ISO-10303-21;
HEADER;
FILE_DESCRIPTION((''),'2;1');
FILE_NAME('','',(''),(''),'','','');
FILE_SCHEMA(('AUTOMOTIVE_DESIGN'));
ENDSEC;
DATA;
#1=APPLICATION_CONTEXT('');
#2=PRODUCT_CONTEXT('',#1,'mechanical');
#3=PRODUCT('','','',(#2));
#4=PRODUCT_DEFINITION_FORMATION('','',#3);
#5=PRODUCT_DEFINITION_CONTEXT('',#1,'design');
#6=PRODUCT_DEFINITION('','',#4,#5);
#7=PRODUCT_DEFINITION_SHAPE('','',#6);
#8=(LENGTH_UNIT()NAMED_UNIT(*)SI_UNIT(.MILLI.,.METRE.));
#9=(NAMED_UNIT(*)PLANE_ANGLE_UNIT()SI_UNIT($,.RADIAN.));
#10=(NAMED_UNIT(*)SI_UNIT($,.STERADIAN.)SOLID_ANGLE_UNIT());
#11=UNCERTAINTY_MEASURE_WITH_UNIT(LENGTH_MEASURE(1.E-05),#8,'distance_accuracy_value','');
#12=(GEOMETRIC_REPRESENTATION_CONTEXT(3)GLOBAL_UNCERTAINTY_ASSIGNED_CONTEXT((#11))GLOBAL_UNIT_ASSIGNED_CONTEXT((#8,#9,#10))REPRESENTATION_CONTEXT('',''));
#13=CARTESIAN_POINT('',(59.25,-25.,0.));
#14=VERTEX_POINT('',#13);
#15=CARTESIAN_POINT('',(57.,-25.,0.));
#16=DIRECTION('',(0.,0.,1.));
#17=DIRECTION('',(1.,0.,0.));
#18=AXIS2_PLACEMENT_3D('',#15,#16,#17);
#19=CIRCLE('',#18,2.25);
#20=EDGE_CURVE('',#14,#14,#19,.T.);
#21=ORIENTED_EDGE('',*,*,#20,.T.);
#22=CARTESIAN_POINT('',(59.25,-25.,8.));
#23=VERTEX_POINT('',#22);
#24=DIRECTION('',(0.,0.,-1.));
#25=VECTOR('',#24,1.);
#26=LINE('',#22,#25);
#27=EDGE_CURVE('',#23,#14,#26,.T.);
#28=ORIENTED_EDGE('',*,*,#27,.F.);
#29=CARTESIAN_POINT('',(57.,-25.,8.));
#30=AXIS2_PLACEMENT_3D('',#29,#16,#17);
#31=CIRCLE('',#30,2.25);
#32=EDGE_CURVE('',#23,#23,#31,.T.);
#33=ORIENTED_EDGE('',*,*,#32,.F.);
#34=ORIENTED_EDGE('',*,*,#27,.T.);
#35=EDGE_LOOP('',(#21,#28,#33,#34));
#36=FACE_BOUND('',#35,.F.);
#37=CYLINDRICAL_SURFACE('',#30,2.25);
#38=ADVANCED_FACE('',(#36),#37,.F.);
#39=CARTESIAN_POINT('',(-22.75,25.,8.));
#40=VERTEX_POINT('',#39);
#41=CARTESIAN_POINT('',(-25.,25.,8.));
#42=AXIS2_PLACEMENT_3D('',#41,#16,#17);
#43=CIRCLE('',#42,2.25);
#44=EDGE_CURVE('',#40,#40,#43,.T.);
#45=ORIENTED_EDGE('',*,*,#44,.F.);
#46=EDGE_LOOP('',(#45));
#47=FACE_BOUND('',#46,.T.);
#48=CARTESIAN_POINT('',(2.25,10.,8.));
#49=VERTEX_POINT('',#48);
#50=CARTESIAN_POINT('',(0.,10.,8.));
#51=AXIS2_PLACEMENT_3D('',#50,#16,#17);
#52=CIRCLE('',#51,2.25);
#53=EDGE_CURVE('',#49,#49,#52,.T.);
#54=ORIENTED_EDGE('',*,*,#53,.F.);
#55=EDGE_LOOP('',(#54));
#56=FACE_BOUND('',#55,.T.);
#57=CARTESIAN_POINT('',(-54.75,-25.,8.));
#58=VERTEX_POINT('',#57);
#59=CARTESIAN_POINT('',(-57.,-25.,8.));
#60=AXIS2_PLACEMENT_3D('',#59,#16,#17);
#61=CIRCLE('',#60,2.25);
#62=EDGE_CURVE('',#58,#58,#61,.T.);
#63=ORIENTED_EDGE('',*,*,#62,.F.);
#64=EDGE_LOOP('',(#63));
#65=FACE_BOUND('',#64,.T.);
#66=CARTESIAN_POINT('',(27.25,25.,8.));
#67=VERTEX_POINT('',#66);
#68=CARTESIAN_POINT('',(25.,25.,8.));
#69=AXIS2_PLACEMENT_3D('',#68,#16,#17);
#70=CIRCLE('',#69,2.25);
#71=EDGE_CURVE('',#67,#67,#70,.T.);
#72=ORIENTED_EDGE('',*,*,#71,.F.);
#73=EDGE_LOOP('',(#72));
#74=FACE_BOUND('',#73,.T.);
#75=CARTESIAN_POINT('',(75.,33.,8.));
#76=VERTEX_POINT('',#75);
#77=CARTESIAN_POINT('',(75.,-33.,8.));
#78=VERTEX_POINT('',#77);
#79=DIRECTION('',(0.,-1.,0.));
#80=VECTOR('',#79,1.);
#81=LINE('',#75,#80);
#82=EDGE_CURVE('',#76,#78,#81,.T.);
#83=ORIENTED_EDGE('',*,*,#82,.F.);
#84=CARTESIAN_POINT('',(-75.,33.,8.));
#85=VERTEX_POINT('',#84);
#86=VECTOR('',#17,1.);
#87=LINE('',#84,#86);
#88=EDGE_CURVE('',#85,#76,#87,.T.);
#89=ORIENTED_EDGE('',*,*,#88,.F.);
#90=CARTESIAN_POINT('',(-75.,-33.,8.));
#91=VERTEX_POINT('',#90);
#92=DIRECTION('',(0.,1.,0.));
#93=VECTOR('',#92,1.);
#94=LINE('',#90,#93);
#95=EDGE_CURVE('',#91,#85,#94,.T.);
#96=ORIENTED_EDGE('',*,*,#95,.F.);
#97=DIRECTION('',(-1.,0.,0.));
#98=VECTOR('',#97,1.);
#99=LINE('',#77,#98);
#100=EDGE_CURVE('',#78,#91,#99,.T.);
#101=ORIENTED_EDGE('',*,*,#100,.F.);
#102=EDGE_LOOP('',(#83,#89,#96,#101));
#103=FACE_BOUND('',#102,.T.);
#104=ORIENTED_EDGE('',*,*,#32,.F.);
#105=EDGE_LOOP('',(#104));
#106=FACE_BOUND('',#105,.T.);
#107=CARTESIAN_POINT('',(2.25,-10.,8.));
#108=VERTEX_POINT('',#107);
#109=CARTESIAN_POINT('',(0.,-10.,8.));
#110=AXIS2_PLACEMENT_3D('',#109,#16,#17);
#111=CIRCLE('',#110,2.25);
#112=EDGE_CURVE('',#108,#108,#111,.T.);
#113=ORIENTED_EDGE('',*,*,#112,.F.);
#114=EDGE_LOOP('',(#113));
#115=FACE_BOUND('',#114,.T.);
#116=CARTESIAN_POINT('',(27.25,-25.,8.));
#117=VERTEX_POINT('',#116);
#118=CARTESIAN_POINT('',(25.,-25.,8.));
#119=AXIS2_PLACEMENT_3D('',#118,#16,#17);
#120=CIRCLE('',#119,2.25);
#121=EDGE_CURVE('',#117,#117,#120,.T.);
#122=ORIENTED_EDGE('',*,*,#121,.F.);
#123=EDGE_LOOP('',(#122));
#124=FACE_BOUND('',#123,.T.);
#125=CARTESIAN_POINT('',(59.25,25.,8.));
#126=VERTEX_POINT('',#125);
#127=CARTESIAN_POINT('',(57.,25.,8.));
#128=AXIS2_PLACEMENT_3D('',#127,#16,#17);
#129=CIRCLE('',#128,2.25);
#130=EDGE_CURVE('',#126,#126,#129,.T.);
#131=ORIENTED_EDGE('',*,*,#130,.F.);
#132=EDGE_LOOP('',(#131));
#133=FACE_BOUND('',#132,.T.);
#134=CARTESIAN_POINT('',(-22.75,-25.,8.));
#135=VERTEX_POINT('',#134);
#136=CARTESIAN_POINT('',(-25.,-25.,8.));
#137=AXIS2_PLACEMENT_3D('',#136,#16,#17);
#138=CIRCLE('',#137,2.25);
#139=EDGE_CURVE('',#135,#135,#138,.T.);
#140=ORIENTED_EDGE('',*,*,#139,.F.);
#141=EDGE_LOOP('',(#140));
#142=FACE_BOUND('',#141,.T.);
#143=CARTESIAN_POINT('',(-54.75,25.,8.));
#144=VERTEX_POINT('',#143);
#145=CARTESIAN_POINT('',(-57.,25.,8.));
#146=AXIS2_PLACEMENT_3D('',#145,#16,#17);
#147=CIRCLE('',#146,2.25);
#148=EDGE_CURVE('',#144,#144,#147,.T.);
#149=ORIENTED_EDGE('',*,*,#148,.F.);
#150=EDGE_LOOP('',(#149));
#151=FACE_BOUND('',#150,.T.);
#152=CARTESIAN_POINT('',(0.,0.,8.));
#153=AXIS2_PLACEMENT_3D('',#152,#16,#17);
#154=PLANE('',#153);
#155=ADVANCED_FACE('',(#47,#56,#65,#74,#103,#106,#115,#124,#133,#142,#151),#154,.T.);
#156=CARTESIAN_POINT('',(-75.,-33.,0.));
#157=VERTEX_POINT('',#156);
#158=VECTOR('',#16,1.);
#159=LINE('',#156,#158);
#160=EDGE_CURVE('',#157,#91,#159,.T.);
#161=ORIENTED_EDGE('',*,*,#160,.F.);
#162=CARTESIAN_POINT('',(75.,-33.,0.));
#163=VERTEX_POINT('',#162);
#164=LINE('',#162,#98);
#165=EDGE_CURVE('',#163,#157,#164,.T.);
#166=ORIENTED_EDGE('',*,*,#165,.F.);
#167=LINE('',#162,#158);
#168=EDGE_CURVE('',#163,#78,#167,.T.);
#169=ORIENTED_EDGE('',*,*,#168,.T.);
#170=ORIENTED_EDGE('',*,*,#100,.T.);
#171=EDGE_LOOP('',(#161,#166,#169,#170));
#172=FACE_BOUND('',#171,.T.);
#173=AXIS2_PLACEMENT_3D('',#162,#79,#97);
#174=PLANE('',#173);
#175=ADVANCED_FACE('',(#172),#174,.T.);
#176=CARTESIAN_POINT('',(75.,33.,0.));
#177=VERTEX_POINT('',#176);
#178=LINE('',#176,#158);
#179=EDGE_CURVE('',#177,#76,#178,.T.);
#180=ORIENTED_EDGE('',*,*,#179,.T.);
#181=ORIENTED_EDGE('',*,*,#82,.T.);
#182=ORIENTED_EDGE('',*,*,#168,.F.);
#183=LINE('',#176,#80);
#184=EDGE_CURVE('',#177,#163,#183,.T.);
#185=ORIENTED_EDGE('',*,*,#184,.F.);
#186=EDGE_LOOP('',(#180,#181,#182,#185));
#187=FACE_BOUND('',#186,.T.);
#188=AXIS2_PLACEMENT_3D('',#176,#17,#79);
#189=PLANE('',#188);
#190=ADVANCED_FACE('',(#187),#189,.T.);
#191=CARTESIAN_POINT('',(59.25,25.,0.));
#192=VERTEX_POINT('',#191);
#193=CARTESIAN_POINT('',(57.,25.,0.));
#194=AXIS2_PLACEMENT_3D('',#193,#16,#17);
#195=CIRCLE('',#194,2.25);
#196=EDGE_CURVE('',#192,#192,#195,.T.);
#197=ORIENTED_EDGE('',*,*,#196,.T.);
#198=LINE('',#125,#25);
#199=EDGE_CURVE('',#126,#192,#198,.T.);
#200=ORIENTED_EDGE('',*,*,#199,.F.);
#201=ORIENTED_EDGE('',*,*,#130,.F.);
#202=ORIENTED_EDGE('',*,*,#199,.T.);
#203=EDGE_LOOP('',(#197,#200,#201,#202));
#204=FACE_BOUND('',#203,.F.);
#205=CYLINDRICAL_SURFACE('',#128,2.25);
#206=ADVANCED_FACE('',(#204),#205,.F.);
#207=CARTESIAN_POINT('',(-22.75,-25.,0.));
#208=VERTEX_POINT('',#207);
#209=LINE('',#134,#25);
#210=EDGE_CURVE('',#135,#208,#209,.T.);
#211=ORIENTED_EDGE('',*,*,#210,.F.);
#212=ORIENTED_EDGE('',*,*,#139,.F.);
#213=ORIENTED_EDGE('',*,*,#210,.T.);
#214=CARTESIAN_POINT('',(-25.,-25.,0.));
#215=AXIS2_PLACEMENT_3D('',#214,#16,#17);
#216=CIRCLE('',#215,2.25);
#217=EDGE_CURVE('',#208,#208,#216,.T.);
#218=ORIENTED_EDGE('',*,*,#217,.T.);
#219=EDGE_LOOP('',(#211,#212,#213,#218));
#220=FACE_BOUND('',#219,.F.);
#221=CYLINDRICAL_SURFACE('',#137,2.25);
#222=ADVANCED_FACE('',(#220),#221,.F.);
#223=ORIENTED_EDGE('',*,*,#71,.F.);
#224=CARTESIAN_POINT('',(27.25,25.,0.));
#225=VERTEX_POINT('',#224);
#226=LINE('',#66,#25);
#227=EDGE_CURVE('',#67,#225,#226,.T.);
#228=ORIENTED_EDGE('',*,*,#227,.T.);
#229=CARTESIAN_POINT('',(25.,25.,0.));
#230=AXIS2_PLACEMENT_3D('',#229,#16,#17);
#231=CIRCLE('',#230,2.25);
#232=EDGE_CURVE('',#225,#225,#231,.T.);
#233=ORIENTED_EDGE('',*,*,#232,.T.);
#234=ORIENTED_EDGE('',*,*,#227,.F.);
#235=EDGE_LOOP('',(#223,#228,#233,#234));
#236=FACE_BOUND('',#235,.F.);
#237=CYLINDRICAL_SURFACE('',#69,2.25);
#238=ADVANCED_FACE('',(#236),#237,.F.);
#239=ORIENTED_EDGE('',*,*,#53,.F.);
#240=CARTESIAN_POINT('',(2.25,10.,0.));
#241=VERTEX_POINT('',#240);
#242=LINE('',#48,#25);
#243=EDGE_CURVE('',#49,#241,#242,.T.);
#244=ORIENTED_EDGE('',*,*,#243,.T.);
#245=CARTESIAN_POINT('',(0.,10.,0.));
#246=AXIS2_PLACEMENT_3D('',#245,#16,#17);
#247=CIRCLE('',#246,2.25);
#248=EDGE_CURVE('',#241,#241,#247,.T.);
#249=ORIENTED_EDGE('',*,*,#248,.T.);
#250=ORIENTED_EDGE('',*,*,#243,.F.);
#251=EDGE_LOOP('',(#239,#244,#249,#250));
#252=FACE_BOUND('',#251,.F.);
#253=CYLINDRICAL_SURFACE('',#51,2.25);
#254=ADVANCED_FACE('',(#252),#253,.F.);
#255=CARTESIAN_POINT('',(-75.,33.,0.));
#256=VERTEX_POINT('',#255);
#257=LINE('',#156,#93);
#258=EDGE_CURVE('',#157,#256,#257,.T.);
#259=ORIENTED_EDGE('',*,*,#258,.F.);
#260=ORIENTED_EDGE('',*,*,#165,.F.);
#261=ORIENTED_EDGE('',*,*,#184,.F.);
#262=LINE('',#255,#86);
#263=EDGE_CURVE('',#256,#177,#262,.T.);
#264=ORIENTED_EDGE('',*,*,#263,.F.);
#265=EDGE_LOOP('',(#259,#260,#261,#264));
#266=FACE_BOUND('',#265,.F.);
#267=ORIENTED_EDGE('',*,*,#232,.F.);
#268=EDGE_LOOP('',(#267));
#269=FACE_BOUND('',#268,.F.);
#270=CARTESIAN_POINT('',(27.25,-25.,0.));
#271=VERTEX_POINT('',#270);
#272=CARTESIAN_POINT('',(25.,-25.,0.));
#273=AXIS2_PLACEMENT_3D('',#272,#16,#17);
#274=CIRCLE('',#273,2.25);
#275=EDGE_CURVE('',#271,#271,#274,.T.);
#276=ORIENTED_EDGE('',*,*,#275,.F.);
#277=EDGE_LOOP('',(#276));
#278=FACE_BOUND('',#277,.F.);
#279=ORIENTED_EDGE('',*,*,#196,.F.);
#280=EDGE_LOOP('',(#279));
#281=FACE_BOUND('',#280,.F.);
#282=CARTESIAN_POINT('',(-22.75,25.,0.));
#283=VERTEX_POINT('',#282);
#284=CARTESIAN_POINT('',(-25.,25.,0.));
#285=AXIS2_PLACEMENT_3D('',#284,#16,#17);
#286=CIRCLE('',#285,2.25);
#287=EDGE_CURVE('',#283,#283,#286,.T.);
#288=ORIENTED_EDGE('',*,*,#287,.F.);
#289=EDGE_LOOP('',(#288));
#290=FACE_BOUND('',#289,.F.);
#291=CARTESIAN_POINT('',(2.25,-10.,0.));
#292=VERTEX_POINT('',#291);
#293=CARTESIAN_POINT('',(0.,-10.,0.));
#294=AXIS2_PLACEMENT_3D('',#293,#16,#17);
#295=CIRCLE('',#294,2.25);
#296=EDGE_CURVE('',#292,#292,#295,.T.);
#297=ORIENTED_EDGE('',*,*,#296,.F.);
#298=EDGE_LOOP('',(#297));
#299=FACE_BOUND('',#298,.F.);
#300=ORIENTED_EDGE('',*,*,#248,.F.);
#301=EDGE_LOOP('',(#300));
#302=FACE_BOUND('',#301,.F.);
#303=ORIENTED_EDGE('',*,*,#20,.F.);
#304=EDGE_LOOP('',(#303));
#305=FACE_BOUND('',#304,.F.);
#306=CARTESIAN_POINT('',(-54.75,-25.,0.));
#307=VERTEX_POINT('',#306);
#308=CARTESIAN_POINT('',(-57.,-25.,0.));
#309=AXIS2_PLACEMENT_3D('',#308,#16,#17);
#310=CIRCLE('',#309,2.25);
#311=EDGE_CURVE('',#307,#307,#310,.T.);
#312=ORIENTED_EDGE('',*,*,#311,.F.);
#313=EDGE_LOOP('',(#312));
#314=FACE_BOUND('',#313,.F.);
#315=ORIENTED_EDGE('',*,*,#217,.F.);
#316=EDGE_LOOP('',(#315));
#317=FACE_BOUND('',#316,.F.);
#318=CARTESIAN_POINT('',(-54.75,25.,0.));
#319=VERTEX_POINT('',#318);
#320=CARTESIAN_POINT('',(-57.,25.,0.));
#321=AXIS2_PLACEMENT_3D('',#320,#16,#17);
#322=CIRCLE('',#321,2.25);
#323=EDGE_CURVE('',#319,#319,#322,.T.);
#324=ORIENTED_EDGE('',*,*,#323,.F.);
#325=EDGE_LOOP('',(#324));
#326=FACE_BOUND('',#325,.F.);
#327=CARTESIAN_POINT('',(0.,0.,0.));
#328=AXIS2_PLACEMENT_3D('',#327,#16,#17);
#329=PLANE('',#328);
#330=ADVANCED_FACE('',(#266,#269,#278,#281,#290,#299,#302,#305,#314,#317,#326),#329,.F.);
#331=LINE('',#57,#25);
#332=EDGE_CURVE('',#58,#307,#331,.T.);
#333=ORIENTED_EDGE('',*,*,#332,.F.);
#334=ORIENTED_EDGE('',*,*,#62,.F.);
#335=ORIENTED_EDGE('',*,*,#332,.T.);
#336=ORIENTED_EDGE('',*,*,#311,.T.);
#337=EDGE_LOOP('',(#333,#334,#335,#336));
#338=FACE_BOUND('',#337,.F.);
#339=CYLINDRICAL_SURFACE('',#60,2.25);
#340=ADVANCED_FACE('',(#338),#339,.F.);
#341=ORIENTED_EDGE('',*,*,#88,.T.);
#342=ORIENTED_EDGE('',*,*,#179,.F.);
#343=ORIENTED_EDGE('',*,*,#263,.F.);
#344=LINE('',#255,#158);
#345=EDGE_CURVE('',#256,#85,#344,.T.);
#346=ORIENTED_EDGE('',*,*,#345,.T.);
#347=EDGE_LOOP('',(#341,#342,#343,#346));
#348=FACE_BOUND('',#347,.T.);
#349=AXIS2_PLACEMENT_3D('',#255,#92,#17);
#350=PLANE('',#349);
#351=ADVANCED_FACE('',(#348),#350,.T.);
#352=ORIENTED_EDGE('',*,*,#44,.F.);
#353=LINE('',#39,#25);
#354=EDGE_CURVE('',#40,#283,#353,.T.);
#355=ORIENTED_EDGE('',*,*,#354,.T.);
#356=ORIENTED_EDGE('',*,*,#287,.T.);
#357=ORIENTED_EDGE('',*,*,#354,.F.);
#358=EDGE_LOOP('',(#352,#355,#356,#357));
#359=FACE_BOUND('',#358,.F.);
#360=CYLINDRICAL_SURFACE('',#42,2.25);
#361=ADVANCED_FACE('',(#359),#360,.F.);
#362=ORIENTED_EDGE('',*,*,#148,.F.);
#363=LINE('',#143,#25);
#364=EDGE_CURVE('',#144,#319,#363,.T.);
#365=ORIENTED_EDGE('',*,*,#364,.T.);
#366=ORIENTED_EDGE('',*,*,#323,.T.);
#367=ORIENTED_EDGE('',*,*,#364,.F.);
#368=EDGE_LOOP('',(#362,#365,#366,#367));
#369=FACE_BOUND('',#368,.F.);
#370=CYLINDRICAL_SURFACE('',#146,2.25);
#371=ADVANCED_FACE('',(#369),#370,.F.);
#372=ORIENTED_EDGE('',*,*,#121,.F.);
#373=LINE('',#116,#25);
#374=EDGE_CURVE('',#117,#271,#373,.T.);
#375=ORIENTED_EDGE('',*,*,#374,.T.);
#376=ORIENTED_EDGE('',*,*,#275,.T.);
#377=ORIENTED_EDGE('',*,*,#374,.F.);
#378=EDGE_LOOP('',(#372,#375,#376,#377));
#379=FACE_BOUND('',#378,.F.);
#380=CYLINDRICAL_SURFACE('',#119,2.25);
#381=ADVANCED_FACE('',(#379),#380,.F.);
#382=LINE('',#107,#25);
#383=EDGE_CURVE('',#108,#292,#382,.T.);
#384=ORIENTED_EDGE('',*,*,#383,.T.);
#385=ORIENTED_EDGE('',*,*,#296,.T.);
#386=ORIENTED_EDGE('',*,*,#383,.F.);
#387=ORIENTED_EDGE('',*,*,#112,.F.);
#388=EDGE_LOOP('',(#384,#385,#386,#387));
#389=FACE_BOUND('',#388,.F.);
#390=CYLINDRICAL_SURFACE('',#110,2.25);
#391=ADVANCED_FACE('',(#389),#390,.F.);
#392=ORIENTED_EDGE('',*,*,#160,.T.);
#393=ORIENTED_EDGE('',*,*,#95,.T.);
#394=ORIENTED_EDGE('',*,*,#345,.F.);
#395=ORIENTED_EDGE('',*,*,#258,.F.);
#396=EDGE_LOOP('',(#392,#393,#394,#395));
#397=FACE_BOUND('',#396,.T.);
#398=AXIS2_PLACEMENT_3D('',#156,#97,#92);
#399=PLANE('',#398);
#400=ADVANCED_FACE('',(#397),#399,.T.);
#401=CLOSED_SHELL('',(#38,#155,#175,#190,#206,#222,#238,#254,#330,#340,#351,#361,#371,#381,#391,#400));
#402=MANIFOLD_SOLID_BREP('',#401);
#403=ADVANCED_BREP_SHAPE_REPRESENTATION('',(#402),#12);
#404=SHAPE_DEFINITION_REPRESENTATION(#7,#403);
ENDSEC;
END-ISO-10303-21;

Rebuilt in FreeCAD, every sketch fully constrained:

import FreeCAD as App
import Part
import Sketcher
Q = App.Units.Quantity

doc = App.newDocument("Part")
body = doc.addObject("PartDesign::Body", "Body")

# Sketch on XY plane
sketch1 = doc.addObject("Sketcher::SketchObject", "Sketch")
body.addObject(sketch1)
sketch1.AttachmentSupport = (doc.XY_Plane, [""])
sketch1.MapMode = "FlatFace"
sketch1.addGeometry([
    Part.LineSegment(App.Vector(75, 33, 0), App.Vector(-75, 33, 0)),
    Part.LineSegment(App.Vector(-75, 33, 0), App.Vector(-75, -33, 0)),
    Part.LineSegment(App.Vector(-75, -33, 0), App.Vector(75, -33, 0)),
    Part.LineSegment(App.Vector(75, -33, 0), App.Vector(75, 33, 0)),
], False)
sketch1.addConstraint([
    Sketcher.Constraint("Coincident", 0, 2, 1, 1),
    Sketcher.Constraint("Coincident", 1, 2, 2, 1),
    Sketcher.Constraint("Coincident", 2, 2, 3, 1),
    Sketcher.Constraint("Coincident", 3, 2, 0, 1),
    Sketcher.Constraint("Horizontal", 0),
    Sketcher.Constraint("Vertical", 1),
    Sketcher.Constraint("Horizontal", 2),
    Sketcher.Constraint("Vertical", 3),
    Sketcher.Constraint("Symmetric", 0, 2, 2, 2, -1, 1),
    Sketcher.Constraint("DistanceX", 0, 2, 0, 1, Q("150 mm")),
    Sketcher.Constraint("DistanceY", 1, 2, 1, 1, Q("66 mm")),
])
pad1 = doc.addObject("PartDesign::Pad", "Pad")
body.addObject(pad1)
pad1.Profile = sketch1
pad1.Length = 8

# Sketch on XY plane
sketch2 = doc.addObject("Sketcher::SketchObject", "Sketch001")
body.addObject(sketch2)
sketch2.AttachmentSupport = (doc.XY_Plane, [""])
sketch2.MapMode = "FlatFace"
sketch2.AttachmentOffset = App.Placement(App.Vector(0, 0, 8), App.Rotation())
sketch2.addGeometry([
    Part.Circle(App.Vector(-57, -25, 0), App.Vector(0, 0, 1), 2.25),  # 0
    Part.Circle(App.Vector(-57, 25, 0), App.Vector(0, 0, 1), 2.25),  # 1
    Part.Circle(App.Vector(-25, -25, 0), App.Vector(0, 0, 1), 2.25),  # 2
    Part.Circle(App.Vector(-25, 25, 0), App.Vector(0, 0, 1), 2.25),  # 3
    Part.Circle(App.Vector(57, -25, 0), App.Vector(0, 0, 1), 2.25),  # 4
    Part.Circle(App.Vector(57, 25, 0), App.Vector(0, 0, 1), 2.25),  # 5
    Part.Circle(App.Vector(25, -25, 0), App.Vector(0, 0, 1), 2.25),  # 6
    Part.Circle(App.Vector(25, 25, 0), App.Vector(0, 0, 1), 2.25),  # 7
    Part.Circle(App.Vector(0, 10, 0), App.Vector(0, 0, 1), 2.25),  # 8
    Part.Circle(App.Vector(0, -10, 0), App.Vector(0, 0, 1), 2.25),  # 9
], False)
sketch2.addConstraint([
    Sketcher.Constraint("Equal", 0, 1),
    Sketcher.Constraint("Equal", 1, 2),
    Sketcher.Constraint("Equal", 2, 3),
    Sketcher.Constraint("Equal", 3, 4),
    Sketcher.Constraint("Equal", 4, 5),
    Sketcher.Constraint("Equal", 5, 6),
    Sketcher.Constraint("Equal", 6, 7),
    Sketcher.Constraint("Equal", 7, 8),
    Sketcher.Constraint("Equal", 8, 9),
    Sketcher.Constraint("Symmetric", 1, 3, 4, 3, -1, 1),
    Sketcher.Constraint("Symmetric", 0, 3, 5, 3, -1, 1),
    Sketcher.Constraint("Symmetric", 3, 3, 6, 3, -1, 1),
    Sketcher.Constraint("Symmetric", 2, 3, 7, 3, -1, 1),
    Sketcher.Constraint("Symmetric", 8, 3, 9, 3, -1, 1),
    Sketcher.Constraint("Symmetric", 0, 3, 4, 3, -2),
    Sketcher.Constraint("Symmetric", 2, 3, 6, 3, -2),
    Sketcher.Constraint("PointOnObject", 8, 3, -2),
    Sketcher.Constraint("Horizontal", 0, 3, 2, 3),
    Sketcher.Constraint("Diameter", 0, Q("4.5 mm")),
    Sketcher.Constraint("DistanceY", -1, 1, 8, 3, Q("10 mm")),
    Sketcher.Constraint("DistanceX", 0, 3, 2, 3, Q("32 mm")),
    Sketcher.Constraint("DistanceX", 0, 3, -1, 1, Q("57 mm")),
    Sketcher.Constraint("DistanceY", 0, 3, -1, 1, Q("25 mm")),
])
pocket1 = doc.addObject("PartDesign::Pocket", "Pocket")
body.addObject(pocket1)
pocket1.Profile = sketch2
pocket1.Type = "ThroughAll"

doc.recompute()
